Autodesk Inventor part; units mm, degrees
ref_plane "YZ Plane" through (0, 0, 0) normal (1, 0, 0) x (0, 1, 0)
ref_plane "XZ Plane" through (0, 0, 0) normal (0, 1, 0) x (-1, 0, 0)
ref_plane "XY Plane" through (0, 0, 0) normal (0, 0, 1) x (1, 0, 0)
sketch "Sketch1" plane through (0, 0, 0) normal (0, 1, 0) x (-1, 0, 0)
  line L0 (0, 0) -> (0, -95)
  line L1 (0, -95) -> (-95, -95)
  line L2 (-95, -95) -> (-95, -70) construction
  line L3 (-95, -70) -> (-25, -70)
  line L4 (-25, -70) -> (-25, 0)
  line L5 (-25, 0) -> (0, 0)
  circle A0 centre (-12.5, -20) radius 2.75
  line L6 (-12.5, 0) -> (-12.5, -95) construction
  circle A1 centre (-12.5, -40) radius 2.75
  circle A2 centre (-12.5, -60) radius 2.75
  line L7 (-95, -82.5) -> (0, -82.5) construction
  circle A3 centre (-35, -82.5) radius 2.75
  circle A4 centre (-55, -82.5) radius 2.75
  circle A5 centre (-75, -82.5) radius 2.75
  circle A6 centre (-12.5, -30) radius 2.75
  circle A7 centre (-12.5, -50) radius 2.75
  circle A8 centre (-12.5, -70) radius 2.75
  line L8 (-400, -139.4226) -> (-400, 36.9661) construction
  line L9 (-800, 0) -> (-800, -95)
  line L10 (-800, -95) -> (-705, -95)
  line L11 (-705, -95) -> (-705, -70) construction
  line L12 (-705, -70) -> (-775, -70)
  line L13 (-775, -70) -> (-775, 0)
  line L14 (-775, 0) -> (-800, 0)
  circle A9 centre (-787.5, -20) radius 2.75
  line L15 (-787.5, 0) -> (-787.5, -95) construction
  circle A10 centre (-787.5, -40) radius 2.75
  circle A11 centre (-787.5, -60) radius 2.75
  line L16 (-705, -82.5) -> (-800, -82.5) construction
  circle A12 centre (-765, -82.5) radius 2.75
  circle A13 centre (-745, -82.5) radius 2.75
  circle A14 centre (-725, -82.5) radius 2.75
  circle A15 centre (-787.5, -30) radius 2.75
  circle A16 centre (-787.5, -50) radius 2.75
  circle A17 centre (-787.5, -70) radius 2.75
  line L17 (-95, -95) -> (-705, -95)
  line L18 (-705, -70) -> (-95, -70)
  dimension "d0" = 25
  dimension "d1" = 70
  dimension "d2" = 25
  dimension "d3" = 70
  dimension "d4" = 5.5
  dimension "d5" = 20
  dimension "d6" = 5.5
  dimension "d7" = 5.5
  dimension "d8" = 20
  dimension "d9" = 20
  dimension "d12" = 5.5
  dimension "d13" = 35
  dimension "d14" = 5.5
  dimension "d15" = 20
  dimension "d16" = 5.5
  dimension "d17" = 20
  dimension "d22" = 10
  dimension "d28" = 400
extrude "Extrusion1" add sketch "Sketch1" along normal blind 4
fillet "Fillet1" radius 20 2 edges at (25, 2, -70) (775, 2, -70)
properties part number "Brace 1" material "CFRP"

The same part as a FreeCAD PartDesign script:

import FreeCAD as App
import Part
import Sketcher

V = App.Vector
Q = App.Units.Quantity


def edges_at(feature, points):
    """Names of the edges that pass closest to the given points."""
    edges = feature.Shape.Edges
    near = lambda p: min(range(len(edges)), key=lambda i: edges[i].distToShape(Part.Vertex(*p))[0])
    return sorted({f"Edge{near(p) + 1}" for p in points})

doc = App.newDocument("Part")
body = doc.addObject("PartDesign::Body", "Body")

sketch1 = body.newObject("Sketcher::SketchObject", "Sketch")
sketch1.AttachmentSupport = (doc.getObject("XZ_Plane"), [""])
sketch1.MapMode = "FlatFace"
sketch1.addGeometry(Part.LineSegment(V(0, -95, 0), V(0, 0, 0)), False)
sketch1.addGeometry(Part.LineSegment(V(0, 0, 0), V(25, 0, 0)), False)
sketch1.addGeometry(Part.LineSegment(V(25, 0, 0), V(25, -70, 0)), False)
sketch1.addGeometry(Part.LineSegment(V(25, -70, 0), V(775, -70, 0)), False)
sketch1.addGeometry(Part.LineSegment(V(775, -70, 0), V(775, 0, 0)), False)
sketch1.addGeometry(Part.LineSegment(V(775, 0, 0), V(800, 0, 0)), False)
sketch1.addGeometry(Part.LineSegment(V(800, 0, 0), V(800, -95, 0)), False)
sketch1.addGeometry(Part.LineSegment(V(800, -95, 0), V(0, -95, 0)), False)
sketch1.addGeometry(Part.Circle(V(765, -82.5, 0), V(0, 0, 1), 2.8), False)
sketch1.addGeometry(Part.Circle(V(745, -82.5, 0), V(0, 0, 1), 2.8), False)
sketch1.addGeometry(Part.Circle(V(725, -82.5, 0), V(0, 0, 1), 2.8), False)
sketch1.addGeometry(Part.Circle(V(787.5, -70, 0), V(0, 0, 1), 2.8), False)
sketch1.addGeometry(Part.Circle(V(787.5, -60, 0), V(0, 0, 1), 2.8), False)
sketch1.addGeometry(Part.Circle(V(787.5, -50, 0), V(0, 0, 1), 2.8), False)
sketch1.addGeometry(Part.Circle(V(75, -82.5, 0), V(0, 0, 1), 2.8), False)
sketch1.addGeometry(Part.Circle(V(55, -82.5, 0), V(0, 0, 1), 2.8), False)
sketch1.addGeometry(Part.Circle(V(35, -82.5, 0), V(0, 0, 1), 2.8), False)
sketch1.addGeometry(Part.Circle(V(12.5, -70, 0), V(0, 0, 1), 2.8), False)
sketch1.addGeometry(Part.Circle(V(12.5, -60, 0), V(0, 0, 1), 2.8), False)
sketch1.addGeometry(Part.Circle(V(12.5, -50, 0), V(0, 0, 1), 2.8), False)
sketch1.addGeometry(Part.Circle(V(787.5, -40, 0), V(0, 0, 1), 2.8), False)
sketch1.addGeometry(Part.Circle(V(787.5, -30, 0), V(0, 0, 1), 2.8), False)
sketch1.addGeometry(Part.Circle(V(787.5, -20, 0), V(0, 0, 1), 2.8), False)
sketch1.addGeometry(Part.Circle(V(12.5, -40, 0), V(0, 0, 1), 2.8), False)
sketch1.addGeometry(Part.Circle(V(12.5, -30, 0), V(0, 0, 1), 2.8), False)
sketch1.addGeometry(Part.Circle(V(12.5, -20, 0), V(0, 0, 1), 2.8), False)
sketch1.addConstraint(Sketcher.Constraint("Coincident", 0, 2, 1, 1))
sketch1.addConstraint(Sketcher.Constraint("Coincident", 1, 2, 2, 1))
sketch1.addConstraint(Sketcher.Constraint("Coincident", 2, 2, 3, 1))
sketch1.addConstraint(Sketcher.Constraint("Coincident", 3, 2, 4, 1))
sketch1.addConstraint(Sketcher.Constraint("Coincident", 4, 2, 5, 1))
sketch1.addConstraint(Sketcher.Constraint("Coincident", 5, 2, 6, 1))
sketch1.addConstraint(Sketcher.Constraint("Coincident", 6, 2, 7, 1))
sketch1.addConstraint(Sketcher.Constraint("Coincident", 7, 2, 0, 1))
sketch1.addConstraint(Sketcher.Constraint("Vertical", 0))
sketch1.addConstraint(Sketcher.Constraint("Horizontal", 1))
sketch1.addConstraint(Sketcher.Constraint("Vertical", 2))
sketch1.addConstraint(Sketcher.Constraint("Horizontal", 3))
sketch1.addConstraint(Sketcher.Constraint("Vertical", 4))
sketch1.addConstraint(Sketcher.Constraint("Horizontal", 5))
sketch1.addConstraint(Sketcher.Constraint("Vertical", 6))
sketch1.addConstraint(Sketcher.Constraint("Horizontal", 7))
sketch1.addConstraint(Sketcher.Constraint("Coincident", 0, 2, -1, 1))
sketch1.addConstraint(Sketcher.Constraint("Equal", 8, 9))
sketch1.addConstraint(Sketcher.Constraint("Equal", 9, 10))
sketch1.addConstraint(Sketcher.Constraint("Equal", 10, 11))
sketch1.addConstraint(Sketcher.Constraint("Equal", 11, 12))
sketch1.addConstraint(Sketcher.Constraint("Equal", 12, 13))
sketch1.addConstraint(Sketcher.Constraint("Equal", 13, 14))
sketch1.addConstraint(Sketcher.Constraint("Equal", 14, 15))
sketch1.addConstraint(Sketcher.Constraint("Equal", 15, 16))
sketch1.addConstraint(Sketcher.Constraint("Equal", 16, 17))
sketch1.addConstraint(Sketcher.Constraint("Equal", 17, 18))
sketch1.addConstraint(Sketcher.Constraint("Equal", 18, 19))
sketch1.addConstraint(Sketcher.Constraint("Equal", 19, 20))
sketch1.addConstraint(Sketcher.Constraint("Equal", 20, 21))
sketch1.addConstraint(Sketcher.Constraint("Equal", 21, 22))
sketch1.addConstraint(Sketcher.Constraint("Equal", 22, 23))
sketch1.addConstraint(Sketcher.Constraint("Equal", 23, 24))
sketch1.addConstraint(Sketcher.Constraint("Equal", 24, 25))
sketch1.addConstraint(Sketcher.Constraint("PointOnObject", 4, 2, -1))
sketch1.addConstraint(Sketcher.Constraint("Horizontal", 8, 3, 9, 3))
sketch1.addConstraint(Sketcher.Constraint("Horizontal", 9, 3, 10, 3))
sketch1.addConstraint(Sketcher.Constraint("Horizontal", 10, 3, 14, 3))
sketch1.addConstraint(Sketcher.Constraint("Horizontal", 14, 3, 15, 3))
sketch1.addConstraint(Sketcher.Constraint("Horizontal", 15, 3, 16, 3))
sketch1.addConstraint(Sketcher.Constraint("Horizontal", 11, 3, 17, 3))
sketch1.addConstraint(Sketcher.Constraint("Horizontal", 12, 3, 18, 3))
sketch1.addConstraint(Sketcher.Constraint("Horizontal", 13, 3, 19, 3))
sketch1.addConstraint(Sketcher.Constraint("Horizontal", 20, 3, 23, 3))
sketch1.addConstraint(Sketcher.Constraint("Horizontal", 21, 3, 24, 3))
sketch1.addConstraint(Sketcher.Constraint("Horizontal", 22, 3, 25, 3))
sketch1.addConstraint(Sketcher.Constraint("Horizontal", 17, 3, 2, 2))
sketch1.addConstraint(Sketcher.Constraint("Vertical", 11, 3, 12, 3))
sketch1.addConstraint(Sketcher.Constraint("Vertical", 12, 3, 13, 3))
sketch1.addConstraint(Sketcher.Constraint("Vertical", 17, 3, 18, 3))
sketch1.addConstraint(Sketcher.Constraint("Vertical", 18, 3, 19, 3))
sketch1.addConstraint(Sketcher.Constraint("Vertical", 13, 3, 20, 3))
sketch1.addConstraint(Sketcher.Constraint("Vertical", 20, 3, 21, 3))
sketch1.addConstraint(Sketcher.Constraint("Vertical", 21, 3, 22, 3))
sketch1.addConstraint(Sketcher.Constraint("Vertical", 19, 3, 23, 3))
sketch1.addConstraint(Sketcher.Constraint("Vertical", 23, 3, 24, 3))
sketch1.addConstraint(Sketcher.Constraint("Vertical", 24, 3, 25, 3))
sketch1.addConstraint(Sketcher.Constraint("Equal", 1, 5))
sketch1.addConstraint(Sketcher.Constraint("Diameter", 8, Q("5.5 mm")))
sketch1.addConstraint(Sketcher.Constraint("DistanceX", 1, 1, 1, 2, Q("25 mm")))
sketch1.addConstraint(Sketcher.Constraint("DistanceY", 2, 2, 2, 1, Q("70 mm")))
sketch1.addConstraint(Sketcher.Constraint("DistanceX", -1, 1, 16, 3, Q("35 mm")))
sketch1.addConstraint(Sketcher.Constraint("DistanceY", 22, 3, -1, 1, Q("20 mm")))
sketch1.addConstraint(Sketcher.Constraint("DistanceX", 9, 3, 8, 3, Q("20 mm")))
sketch1.addConstraint(Sketcher.Constraint("DistanceX", 10, 3, 9, 3, Q("20 mm")))
sketch1.addConstraint(Sketcher.Constraint("DistanceY", 11, 3, 12, 3, Q("10 mm")))
sketch1.addConstraint(Sketcher.Constraint("DistanceY", 12, 3, 13, 3, Q("10 mm")))
sketch1.addConstraint(Sketcher.Constraint("DistanceX", 15, 3, 14, 3, Q("20 mm")))
sketch1.addConstraint(Sketcher.Constraint("DistanceX", 16, 3, 15, 3, Q("20 mm")))
sketch1.addConstraint(Sketcher.Constraint("DistanceY", 13, 3, 20, 3, Q("10 mm")))
sketch1.addConstraint(Sketcher.Constraint("DistanceY", 20, 3, 21, 3, Q("10 mm")))
sketch1.addConstraint(Sketcher.Constraint("DistanceX", 8, 3, 3, 2, Q("10 mm")))
sketch1.addConstraint(Sketcher.Constraint("DistanceY", 6, 2, 11, 3, Q("25 mm")))
sketch1.addConstraint(Sketcher.Constraint("DistanceX", 3, 1, 3, 2, Q("750 mm")))
sketch1.addConstraint(Sketcher.Constraint("DistanceY", 8, 3, -1, 1, Q("82.5 mm")))
sketch1.addConstraint(Sketcher.Constraint("DistanceX", -1, 1, 11, 3, Q("787.5 mm")))
sketch1.addConstraint(Sketcher.Constraint("DistanceX", -1, 1, 17, 3, Q("12.5 mm")))
pad1 = body.newObject("PartDesign::Pad", "Pad")
pad1.Profile = sketch1
pad1.Length = 4
pad1.Reversed = True
doc.recompute()

fillet = body.newObject("PartDesign::Fillet", "Fillet")
fillet.Base = (pad1, edges_at(pad1, [(25, 2, -70), (775, 2, -70)]))
fillet.Radius = 20

doc.recompute()
